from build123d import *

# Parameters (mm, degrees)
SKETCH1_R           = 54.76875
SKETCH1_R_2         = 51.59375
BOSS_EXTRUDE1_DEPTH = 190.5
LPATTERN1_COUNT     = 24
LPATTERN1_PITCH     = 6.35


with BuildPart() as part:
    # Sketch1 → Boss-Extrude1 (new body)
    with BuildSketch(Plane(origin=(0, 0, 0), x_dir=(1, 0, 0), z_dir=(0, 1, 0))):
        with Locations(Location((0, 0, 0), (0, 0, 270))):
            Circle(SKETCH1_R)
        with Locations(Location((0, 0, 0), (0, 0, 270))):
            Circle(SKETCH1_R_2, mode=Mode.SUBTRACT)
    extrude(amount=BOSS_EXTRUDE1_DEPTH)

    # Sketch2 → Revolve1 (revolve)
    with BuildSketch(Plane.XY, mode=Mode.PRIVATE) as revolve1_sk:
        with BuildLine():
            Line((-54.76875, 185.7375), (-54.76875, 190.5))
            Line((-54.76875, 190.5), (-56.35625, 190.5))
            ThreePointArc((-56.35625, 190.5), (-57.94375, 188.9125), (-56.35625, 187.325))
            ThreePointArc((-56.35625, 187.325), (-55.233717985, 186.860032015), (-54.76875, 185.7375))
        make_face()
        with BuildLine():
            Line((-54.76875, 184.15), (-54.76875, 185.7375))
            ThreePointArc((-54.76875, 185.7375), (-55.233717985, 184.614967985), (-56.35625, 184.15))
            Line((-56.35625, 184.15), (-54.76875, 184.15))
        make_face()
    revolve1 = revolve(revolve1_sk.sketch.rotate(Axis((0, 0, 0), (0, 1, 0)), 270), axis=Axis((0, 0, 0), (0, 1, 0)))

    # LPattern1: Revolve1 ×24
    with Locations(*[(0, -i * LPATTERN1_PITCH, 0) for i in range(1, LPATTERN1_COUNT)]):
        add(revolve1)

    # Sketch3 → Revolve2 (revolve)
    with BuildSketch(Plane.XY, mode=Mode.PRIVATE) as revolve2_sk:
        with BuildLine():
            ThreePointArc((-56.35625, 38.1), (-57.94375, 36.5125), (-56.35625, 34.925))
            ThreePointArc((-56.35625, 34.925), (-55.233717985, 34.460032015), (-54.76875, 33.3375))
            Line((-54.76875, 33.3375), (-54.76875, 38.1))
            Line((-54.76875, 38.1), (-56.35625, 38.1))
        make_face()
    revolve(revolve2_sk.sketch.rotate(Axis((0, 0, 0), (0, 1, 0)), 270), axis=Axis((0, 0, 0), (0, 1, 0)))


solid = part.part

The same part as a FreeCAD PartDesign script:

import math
import FreeCAD as App
import Part
import Sketcher

V = App.Vector
Q = App.Units.Quantity

doc = App.newDocument("Part")
body = doc.addObject("PartDesign::Body", "Body")

# Sketch on XZ plane
sketch1 = doc.addObject("Sketcher::SketchObject", "Sketch")
body.addObject(sketch1)
sketch1.AttachmentSupport = (doc.XZ_Plane, [""])
sketch1.MapMode = "FlatFace"
sketch1.addGeometry(Part.Circle(V(0, 0, 0), V(0, 0, 1), 55), False)
sketch1.addGeometry(Part.Circle(V(0, 0, 0), V(0, 0, 1), 52), False)
sketch1.addConstraint(Sketcher.Constraint("Coincident", 0, 3, -1, 1))
sketch1.addConstraint(Sketcher.Constraint("Coincident", 1, 3, -1, 1))
sketch1.addConstraint(Sketcher.Constraint("Diameter", 0, Q("4.3125 in")))
sketch1.addConstraint(Sketcher.Constraint("Diameter", 1, Q("4.0625 in")))
pad1 = doc.addObject("PartDesign::Pad", "Pad")
body.addObject(pad1)
pad1.Profile = sketch1
pad1.Length = Q("7.5 in")
pad1.Reversed = True

# Sketch on XY plane
sketch2 = doc.addObject("Sketcher::SketchObject", "Sketch001")
body.addObject(sketch2)
sketch2.AttachmentSupport = (doc.XY_Plane, [""])
sketch2.MapMode = "FlatFace"
sketch2.addGeometry(Part.LineSegment(V(-54.8, 185.7, 0), V(-54.8, 190.5, 0)), False)
sketch2.addGeometry(Part.LineSegment(V(-54.8, 190.5, 0), V(-56.4, 190.5, 0)), False)
sketch2.addGeometry(Part.ArcOfCircle(Part.Circle(V(-56.4, 188.9, 0), V(0, 0, 1), 1.6), math.radians(90), math.radians(270)), False)
sketch2.addGeometry(Part.ArcOfCircle(Part.Circle(V(-56.4, 185.7, 0), V(0, 0, 1), 1.6), math.radians(0), math.radians(90)), False)
sketch2.addGeometry(Part.LineSegment(V(-54.8, 184.2, 0), V(-54.8, 185.7, 0)), False)
sketch2.addGeometry(Part.ArcOfCircle(Part.Circle(V(-56.4, 185.7, 0), V(0, 0, 1), 1.6), math.radians(-90), math.radians(0)), False)
sketch2.addGeometry(Part.LineSegment(V(-56.4, 184.2, 0), V(-54.8, 184.2, 0)), False)
sketch2.addConstraint(Sketcher.Constraint("Coincident", 0, 2, 1, 1))
sketch2.addConstraint(Sketcher.Constraint("Tangent", 1, 2, 2, 1))
sketch2.addConstraint(Sketcher.Constraint("Tangent", 2, 2, 3, 2))
sketch2.addConstraint(Sketcher.Constraint("Tangent", 3, 1, 0, 1))
sketch2.addConstraint(Sketcher.Constraint("Tangent", 4, 2, 5, 2))
sketch2.addConstraint(Sketcher.Constraint("Tangent", 5, 1, 6, 1))
sketch2.addConstraint(Sketcher.Constraint("Coincident", 6, 2, 4, 1))
sketch2.addConstraint(Sketcher.Constraint("Vertical", 0))
sketch2.addConstraint(Sketcher.Constraint("Horizontal", 1))
sketch2.addConstraint(Sketcher.Constraint("Vertical", 4))
sketch2.addConstraint(Sketcher.Constraint("Horizontal", 6))
sketch2.addConstraint(Sketcher.Constraint("Coincident", 5, 3, 3, 3))
sketch2.addConstraint(Sketcher.Constraint("Equal", 2, 3))
sketch2.addConstraint(Sketcher.Constraint("Equal", 3, 5))
sketch2.addConstraint(Sketcher.Constraint("Vertical", 2, 3, 3, 3))
sketch2.addConstraint(Sketcher.Constraint("Radius", 2, Q("0.0625 in")))
sketch2.addConstraint(Sketcher.Constraint("DistanceY", -1, 1, 0, 2, Q("7.5 in")))
sketch2.addConstraint(Sketcher.Constraint("DistanceX", 2, 3, -1, 1, Q("2.21875 in")))
revolution = doc.addObject("PartDesign::Revolution", "Revolution")
body.addObject(revolution)
revolution.Profile = sketch2
revolution.ReferenceAxis = (sketch2, ["V_Axis"])
revolution.Angle = 360
doc.recompute()

linearpattern = doc.addObject("PartDesign::LinearPattern", "LinearPattern")
body.addObject(linearpattern)
linearpattern.Originals = [revolution]
linearpattern.Direction = (doc.Y_Axis, [""])
linearpattern.Mode = "offset"
linearpattern.Offset = Q("0.25 in")
linearpattern.Occurrences = 24
linearpattern.Reversed = True
body.Tip = linearpattern

# Sketch on XY plane
sketch3 = doc.addObject("Sketcher::SketchObject", "Sketch002")
body.addObject(sketch3)
sketch3.AttachmentSupport = (doc.XY_Plane, [""])
sketch3.MapMode = "FlatFace"
sketch3.addGeometry(Part.ArcOfCircle(Part.Circle(V(-56.4, 36.5, 0), V(0, 0, 1), 1.6), math.radians(90), math.radians(270)), False)
sketch3.addGeometry(Part.ArcOfCircle(Part.Circle(V(-56.4, 33.3, 0), V(0, 0, 1), 1.6), math.radians(0), math.radians(90)), False)
sketch3.addGeometry(Part.LineSegment(V(-54.8, 33.3, 0), V(-54.8, 38.1, 0)), False)
sketch3.addGeometry(Part.LineSegment(V(-54.8, 38.1, 0), V(-56.4, 38.1, 0)), False)
sketch3.addConstraint(Sketcher.Constraint("Tangent", 0, 2, 1, 2))
sketch3.addConstraint(Sketcher.Constraint("Tangent", 1, 1, 2, 1))
sketch3.addConstraint(Sketcher.Constraint("Coincident", 2, 2, 3, 1))
sketch3.addConstraint(Sketcher.Constraint("Tangent", 3, 2, 0, 1))
sketch3.addConstraint(Sketcher.Constraint("Vertical", 2))
sketch3.addConstraint(Sketcher.Constraint("Horizontal", 3))
sketch3.addConstraint(Sketcher.Constraint("Equal", 0, 1))
sketch3.addConstraint(Sketcher.Constraint("Vertical", 0, 3, 1, 3))
sketch3.addConstraint(Sketcher.Constraint("Radius", 0, Q("0.0625 in")))
sketch3.addConstraint(Sketcher.Constraint("DistanceY", -1, 1, 2, 2, Q("1.5 in")))
sketch3.addConstraint(Sketcher.Constraint("DistanceX", 0, 3, -1, 1, Q("2.21875 in")))
revolution2 = doc.addObject("PartDesign::Revolution", "Revolution001")
body.addObject(revolution2)
revolution2.Profile = sketch3
revolution2.ReferenceAxis = (sketch3, ["V_Axis"])
revolution2.Angle = 360

doc.recompute()
